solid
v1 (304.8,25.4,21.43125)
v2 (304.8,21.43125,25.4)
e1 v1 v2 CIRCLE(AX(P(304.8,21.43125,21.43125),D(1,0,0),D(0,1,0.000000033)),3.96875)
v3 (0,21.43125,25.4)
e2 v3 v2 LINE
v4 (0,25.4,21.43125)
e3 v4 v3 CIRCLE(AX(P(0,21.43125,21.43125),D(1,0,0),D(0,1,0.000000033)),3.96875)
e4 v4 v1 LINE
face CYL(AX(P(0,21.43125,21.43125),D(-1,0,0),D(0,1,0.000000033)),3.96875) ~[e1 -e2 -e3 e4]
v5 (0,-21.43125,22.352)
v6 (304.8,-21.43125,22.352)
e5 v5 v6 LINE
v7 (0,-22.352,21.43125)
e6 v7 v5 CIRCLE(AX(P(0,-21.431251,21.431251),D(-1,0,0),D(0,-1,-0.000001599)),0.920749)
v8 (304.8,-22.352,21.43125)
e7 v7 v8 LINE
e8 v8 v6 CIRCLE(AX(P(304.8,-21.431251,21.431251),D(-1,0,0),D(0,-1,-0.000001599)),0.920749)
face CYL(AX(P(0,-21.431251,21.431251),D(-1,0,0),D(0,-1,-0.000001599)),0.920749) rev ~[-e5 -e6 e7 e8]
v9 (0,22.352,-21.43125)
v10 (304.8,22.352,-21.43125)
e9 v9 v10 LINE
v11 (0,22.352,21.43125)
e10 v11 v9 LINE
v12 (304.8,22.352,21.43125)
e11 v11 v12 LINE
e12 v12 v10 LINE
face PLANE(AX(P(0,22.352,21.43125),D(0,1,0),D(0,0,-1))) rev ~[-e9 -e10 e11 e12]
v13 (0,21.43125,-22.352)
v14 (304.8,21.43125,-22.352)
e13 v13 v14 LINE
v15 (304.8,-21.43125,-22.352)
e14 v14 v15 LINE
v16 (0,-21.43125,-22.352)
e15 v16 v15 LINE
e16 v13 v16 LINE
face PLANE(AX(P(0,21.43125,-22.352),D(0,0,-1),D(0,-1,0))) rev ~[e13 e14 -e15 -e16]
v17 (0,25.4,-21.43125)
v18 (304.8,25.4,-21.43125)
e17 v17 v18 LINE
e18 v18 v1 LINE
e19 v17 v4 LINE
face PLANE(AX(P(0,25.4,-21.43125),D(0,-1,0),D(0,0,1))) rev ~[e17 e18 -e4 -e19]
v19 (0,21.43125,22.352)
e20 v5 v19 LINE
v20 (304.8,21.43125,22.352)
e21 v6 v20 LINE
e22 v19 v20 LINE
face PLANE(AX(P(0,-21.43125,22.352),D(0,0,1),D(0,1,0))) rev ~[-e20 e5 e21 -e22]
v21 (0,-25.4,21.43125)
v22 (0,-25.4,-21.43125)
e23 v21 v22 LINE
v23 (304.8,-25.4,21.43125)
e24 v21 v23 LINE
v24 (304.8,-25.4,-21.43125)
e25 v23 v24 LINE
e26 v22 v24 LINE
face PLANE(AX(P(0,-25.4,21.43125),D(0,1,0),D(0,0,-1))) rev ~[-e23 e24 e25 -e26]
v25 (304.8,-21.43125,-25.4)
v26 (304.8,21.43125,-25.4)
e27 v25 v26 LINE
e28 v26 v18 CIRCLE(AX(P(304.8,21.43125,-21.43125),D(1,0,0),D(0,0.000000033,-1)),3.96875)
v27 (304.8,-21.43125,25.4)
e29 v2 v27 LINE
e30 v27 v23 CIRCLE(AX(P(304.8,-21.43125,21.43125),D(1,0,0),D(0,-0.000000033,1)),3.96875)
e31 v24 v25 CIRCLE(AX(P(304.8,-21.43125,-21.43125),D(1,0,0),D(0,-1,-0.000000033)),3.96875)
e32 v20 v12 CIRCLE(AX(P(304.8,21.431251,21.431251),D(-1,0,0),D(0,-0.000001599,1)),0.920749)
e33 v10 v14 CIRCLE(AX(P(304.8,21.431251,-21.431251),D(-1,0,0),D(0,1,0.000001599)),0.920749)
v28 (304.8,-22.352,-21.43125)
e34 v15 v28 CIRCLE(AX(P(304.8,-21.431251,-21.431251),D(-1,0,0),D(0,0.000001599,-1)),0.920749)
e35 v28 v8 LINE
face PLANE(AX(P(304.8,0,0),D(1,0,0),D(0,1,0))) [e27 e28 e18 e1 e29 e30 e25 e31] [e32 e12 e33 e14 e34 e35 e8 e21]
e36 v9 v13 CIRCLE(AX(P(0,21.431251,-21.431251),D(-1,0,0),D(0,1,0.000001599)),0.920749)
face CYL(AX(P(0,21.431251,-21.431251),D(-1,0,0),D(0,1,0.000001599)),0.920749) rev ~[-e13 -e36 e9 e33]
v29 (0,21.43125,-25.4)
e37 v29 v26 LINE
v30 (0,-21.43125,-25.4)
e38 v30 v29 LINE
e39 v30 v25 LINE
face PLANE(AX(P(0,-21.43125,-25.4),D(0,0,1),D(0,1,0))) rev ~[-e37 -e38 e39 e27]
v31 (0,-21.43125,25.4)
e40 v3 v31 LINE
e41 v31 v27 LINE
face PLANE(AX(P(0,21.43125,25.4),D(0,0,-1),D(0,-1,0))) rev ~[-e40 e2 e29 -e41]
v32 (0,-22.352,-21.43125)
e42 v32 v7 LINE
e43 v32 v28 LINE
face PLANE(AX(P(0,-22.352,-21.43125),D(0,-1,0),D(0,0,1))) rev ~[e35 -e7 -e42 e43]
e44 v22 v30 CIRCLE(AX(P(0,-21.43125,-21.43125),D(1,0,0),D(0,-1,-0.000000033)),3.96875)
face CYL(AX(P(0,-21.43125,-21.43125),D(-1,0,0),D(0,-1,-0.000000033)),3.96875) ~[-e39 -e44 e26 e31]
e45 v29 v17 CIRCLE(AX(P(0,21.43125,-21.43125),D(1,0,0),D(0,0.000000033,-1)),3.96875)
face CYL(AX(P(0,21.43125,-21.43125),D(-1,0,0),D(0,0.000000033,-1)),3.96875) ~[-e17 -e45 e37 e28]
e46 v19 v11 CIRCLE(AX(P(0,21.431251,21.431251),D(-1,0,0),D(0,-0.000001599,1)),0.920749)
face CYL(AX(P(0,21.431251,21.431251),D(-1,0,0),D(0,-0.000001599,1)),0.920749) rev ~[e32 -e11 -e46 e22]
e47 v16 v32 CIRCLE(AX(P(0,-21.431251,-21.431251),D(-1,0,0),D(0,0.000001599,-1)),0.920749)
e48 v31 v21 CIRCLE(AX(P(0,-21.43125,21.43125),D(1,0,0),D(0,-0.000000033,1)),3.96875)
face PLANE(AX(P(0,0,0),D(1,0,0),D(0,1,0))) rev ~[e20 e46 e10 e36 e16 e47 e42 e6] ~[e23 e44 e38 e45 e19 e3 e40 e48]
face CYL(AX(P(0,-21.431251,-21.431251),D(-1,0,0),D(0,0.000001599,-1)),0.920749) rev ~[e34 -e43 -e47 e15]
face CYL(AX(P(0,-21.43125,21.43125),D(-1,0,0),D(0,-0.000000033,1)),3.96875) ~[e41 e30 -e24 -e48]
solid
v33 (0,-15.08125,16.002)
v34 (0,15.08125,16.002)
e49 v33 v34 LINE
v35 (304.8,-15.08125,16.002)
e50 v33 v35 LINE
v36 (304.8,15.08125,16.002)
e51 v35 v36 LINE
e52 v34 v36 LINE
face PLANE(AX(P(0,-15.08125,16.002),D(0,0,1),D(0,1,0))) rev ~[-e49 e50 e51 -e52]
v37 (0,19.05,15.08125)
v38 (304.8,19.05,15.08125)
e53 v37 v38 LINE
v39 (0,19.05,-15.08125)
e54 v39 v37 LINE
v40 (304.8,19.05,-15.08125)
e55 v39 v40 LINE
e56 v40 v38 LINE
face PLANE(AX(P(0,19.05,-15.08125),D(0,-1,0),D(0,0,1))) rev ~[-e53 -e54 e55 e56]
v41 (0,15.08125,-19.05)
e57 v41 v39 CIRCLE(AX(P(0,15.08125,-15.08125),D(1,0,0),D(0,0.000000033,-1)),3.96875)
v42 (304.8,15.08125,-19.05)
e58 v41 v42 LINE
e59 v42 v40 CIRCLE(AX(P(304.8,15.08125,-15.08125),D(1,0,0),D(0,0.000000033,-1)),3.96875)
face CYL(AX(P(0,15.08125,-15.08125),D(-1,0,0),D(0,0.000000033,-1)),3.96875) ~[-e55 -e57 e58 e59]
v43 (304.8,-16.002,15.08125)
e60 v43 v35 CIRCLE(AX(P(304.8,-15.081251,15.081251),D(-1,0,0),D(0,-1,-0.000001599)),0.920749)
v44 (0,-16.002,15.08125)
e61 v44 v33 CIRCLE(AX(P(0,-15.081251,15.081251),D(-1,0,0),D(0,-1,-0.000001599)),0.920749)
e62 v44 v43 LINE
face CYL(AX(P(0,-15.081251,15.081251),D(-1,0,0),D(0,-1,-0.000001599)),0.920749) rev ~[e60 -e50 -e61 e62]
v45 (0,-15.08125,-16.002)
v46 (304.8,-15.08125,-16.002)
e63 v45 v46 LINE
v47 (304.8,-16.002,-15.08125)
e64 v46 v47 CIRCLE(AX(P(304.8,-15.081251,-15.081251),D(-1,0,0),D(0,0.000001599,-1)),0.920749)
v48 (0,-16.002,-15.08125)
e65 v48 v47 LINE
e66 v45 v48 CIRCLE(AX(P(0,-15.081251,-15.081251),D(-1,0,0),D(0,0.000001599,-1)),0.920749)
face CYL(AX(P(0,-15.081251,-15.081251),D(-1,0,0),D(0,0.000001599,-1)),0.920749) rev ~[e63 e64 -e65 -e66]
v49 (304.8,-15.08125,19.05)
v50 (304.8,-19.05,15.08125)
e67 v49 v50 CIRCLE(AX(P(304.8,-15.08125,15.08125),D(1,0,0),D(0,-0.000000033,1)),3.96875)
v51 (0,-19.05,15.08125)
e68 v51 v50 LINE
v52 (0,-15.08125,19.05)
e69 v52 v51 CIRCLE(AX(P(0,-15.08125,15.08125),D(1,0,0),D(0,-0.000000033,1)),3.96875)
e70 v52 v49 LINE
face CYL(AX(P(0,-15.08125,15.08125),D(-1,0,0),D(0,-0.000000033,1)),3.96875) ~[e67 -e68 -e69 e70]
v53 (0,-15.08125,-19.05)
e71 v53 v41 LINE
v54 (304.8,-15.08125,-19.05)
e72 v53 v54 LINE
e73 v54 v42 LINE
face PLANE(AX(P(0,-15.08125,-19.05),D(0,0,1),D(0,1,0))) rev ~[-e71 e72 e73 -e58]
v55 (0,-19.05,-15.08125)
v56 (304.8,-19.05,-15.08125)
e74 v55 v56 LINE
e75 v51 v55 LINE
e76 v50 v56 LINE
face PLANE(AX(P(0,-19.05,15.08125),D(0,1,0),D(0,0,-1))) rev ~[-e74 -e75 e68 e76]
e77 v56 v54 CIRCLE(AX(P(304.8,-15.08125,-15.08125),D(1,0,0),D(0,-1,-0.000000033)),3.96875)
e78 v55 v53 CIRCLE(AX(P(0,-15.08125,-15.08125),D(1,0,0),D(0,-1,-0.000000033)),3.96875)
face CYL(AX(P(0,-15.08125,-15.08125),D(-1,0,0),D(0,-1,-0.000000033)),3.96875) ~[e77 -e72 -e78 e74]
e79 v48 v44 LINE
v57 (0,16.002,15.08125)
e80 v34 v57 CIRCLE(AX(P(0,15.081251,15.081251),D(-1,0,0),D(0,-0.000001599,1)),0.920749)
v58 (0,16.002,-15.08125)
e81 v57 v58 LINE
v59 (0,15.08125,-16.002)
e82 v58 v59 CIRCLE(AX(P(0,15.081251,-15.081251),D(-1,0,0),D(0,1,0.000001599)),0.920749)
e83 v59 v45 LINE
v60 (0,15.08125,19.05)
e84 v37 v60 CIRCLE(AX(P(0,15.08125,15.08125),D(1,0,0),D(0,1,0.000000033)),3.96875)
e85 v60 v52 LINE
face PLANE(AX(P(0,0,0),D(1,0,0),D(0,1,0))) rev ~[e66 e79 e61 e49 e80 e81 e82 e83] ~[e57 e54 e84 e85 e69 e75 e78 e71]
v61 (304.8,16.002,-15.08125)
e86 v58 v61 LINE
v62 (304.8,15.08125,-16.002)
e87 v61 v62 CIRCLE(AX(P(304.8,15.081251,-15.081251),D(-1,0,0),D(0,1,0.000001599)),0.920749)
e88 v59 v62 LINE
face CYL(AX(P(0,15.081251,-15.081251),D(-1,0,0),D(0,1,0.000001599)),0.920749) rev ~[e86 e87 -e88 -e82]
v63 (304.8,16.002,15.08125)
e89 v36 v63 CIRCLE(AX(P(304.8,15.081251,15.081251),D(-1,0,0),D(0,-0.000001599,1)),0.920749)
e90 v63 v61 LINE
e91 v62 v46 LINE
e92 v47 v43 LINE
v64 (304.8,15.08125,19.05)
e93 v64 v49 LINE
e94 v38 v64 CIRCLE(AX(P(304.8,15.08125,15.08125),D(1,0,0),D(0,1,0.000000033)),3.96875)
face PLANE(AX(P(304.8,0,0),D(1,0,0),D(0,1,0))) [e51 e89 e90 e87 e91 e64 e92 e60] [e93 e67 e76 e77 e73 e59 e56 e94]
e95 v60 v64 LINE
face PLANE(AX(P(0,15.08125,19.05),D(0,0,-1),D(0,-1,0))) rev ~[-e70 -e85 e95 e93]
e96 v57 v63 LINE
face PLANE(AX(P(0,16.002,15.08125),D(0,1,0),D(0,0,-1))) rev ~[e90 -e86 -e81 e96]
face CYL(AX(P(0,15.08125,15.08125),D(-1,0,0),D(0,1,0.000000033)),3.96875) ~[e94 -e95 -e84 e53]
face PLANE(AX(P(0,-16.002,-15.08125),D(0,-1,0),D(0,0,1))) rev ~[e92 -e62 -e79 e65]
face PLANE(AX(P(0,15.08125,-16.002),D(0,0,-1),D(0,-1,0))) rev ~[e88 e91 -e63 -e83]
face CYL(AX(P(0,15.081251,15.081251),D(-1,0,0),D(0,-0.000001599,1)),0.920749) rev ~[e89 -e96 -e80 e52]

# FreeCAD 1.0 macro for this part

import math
import FreeCAD as App
import Part
import Sketcher
Q = App.Units.Quantity

doc = App.newDocument("Part")
body = doc.addObject("PartDesign::Body", "Body")

# Sketch on YZ plane
sketch1 = doc.addObject("Sketcher::SketchObject", "Sketch")
body.addObject(sketch1)
sketch1.AttachmentSupport = (doc.YZ_Plane, [""])
sketch1.MapMode = "FlatFace"
sketch1.addGeometry([
    Part.LineSegment(App.Vector(21.4, 25.4, 0), App.Vector(-21.4, 25.4, 0)),  # 0
    Part.ArcOfCircle(Part.Circle(App.Vector(-21.4, 21.4, 0), App.Vector(0, 0, 1), 4), math.radians(90), math.radians(180)),  # 1
    Part.LineSegment(App.Vector(-25.4, 21.4, 0), App.Vector(-25.4, -21.4, 0)),  # 2
    Part.ArcOfCircle(Part.Circle(App.Vector(-21.4, -21.4, 0), App.Vector(0, 0, 1), 4), math.radians(-180), math.radians(-90)),  # 3
    Part.LineSegment(App.Vector(-21.4, -25.4, 0), App.Vector(21.4, -25.4, 0)),  # 4
    Part.ArcOfCircle(Part.Circle(App.Vector(21.4, -21.4, 0), App.Vector(0, 0, 1), 4), math.radians(-90), math.radians(0)),  # 5
    Part.LineSegment(App.Vector(25.4, -21.4, 0), App.Vector(25.4, 21.4, 0)),  # 6
    Part.ArcOfCircle(Part.Circle(App.Vector(21.4, 21.4, 0), App.Vector(0, 0, 1), 4), math.radians(0), math.radians(90)),  # 7
    Part.ArcOfCircle(Part.Circle(App.Vector(21.4, -21.4, 0), App.Vector(0, 0, 1), 0.9), math.radians(-90), math.radians(0)),  # 8
    Part.LineSegment(App.Vector(21.4, -22.4, 0), App.Vector(-21.4, -22.4, 0)),  # 9
    Part.ArcOfCircle(Part.Circle(App.Vector(-21.4, -21.4, 0), App.Vector(0, 0, 1), 0.9), math.radians(180), math.radians(270)),  # 10
    Part.LineSegment(App.Vector(-22.4, -21.4, 0), App.Vector(-22.4, 21.4, 0)),  # 11
    Part.ArcOfCircle(Part.Circle(App.Vector(-21.4, 21.4, 0), App.Vector(0, 0, 1), 0.9), math.radians(90), math.radians(180)),  # 12
    Part.LineSegment(App.Vector(-21.4, 22.4, 0), App.Vector(21.4, 22.4, 0)),  # 13
    Part.ArcOfCircle(Part.Circle(App.Vector(21.4, 21.4, 0), App.Vector(0, 0, 1), 0.9), math.radians(0), math.radians(90)),  # 14
    Part.LineSegment(App.Vector(22.4, 21.4, 0), App.Vector(22.4, -21.4, 0)),  # 15
], False)
sketch1.addConstraint([
    Sketcher.Constraint("Tangent", 0, 2, 1, 1),
    Sketcher.Constraint("Tangent", 1, 2, 2, 1),
    Sketcher.Constraint("Tangent", 2, 2, 3, 1),
    Sketcher.Constraint("Tangent", 3, 2, 4, 1),
    Sketcher.Constraint("Tangent", 4, 2, 5, 1),
    Sketcher.Constraint("Tangent", 5, 2, 6, 1),
    Sketcher.Constraint("Tangent", 6, 2, 7, 1),
    Sketcher.Constraint("Tangent", 7, 2, 0, 1),
    Sketcher.Constraint("Tangent", 8, 1, 9, 1),
    Sketcher.Constraint("Tangent", 9, 2, 10, 2),
    Sketcher.Constraint("Tangent", 10, 1, 11, 1),
    Sketcher.Constraint("Tangent", 11, 2, 12, 2),
    Sketcher.Constraint("Tangent", 12, 1, 13, 1),
    Sketcher.Constraint("Tangent", 13, 2, 14, 2),
    Sketcher.Constraint("Tangent", 14, 1, 15, 1),
    Sketcher.Constraint("Tangent", 15, 2, 8, 2),
    Sketcher.Constraint("Horizontal", 0),
    Sketcher.Constraint("Vertical", 2),
    Sketcher.Constraint("Horizontal", 4),
    Sketcher.Constraint("Vertical", 6),
    Sketcher.Constraint("Horizontal", 9),
    Sketcher.Constraint("Vertical", 11),
    Sketcher.Constraint("Horizontal", 13),
    Sketcher.Constraint("Vertical", 15),
    Sketcher.Constraint("Coincident", 8, 3, 5, 3),
    Sketcher.Constraint("Coincident", 10, 3, 3, 3),
    Sketcher.Constraint("Coincident", 12, 3, 1, 3),
    Sketcher.Constraint("Equal", 1, 3),
    Sketcher.Constraint("Equal", 3, 5),
    Sketcher.Constraint("Equal", 5, 7),
    Sketcher.Constraint("Equal", 12, 14),
    Sketcher.Constraint("Symmetric", 1, 3, 5, 3, -1, 1),
    Sketcher.Constraint("Equal", 13, 2),
    Sketcher.Constraint("DistanceY", -1, 1, 0, 2, Q("1 in")),
    Sketcher.Constraint("Radius", 1, Q("0.15625 in")),
    Sketcher.Constraint("DistanceY", 8, 1, -1, 1, Q("0.88 in")),
])
pad1 = doc.addObject("PartDesign::Pad", "Pad")
body.addObject(pad1)
pad1.Profile = sketch1
pad1.Length = Q("12 in")
body2 = doc.addObject("PartDesign::Body", "Body001")

# Sketch on YZ plane
sketch2 = doc.addObject("Sketcher::SketchObject", "Sketch001")
body2.addObject(sketch2)
sketch2.AttachmentSupport = (doc.getObject("YZ_Plane001"), [""])
sketch2.MapMode = "FlatFace"
sketch2.addGeometry([
    Part.ArcOfCircle(Part.Circle(App.Vector(15.1, 15.1, 0), App.Vector(0, 0, 1), 4), math.radians(0), math.radians(90)),  # 0
    Part.LineSegment(App.Vector(15.1, 19.1, 0), App.Vector(-15.1, 19.1, 0)),  # 1
    Part.ArcOfCircle(Part.Circle(App.Vector(-15.1, 15.1, 0), App.Vector(0, 0, 1), 4), math.radians(90), math.radians(180)),  # 2
    Part.LineSegment(App.Vector(-19.1, 15.1, 0), App.Vector(-19.1, -15.1, 0)),  # 3
    Part.ArcOfCircle(Part.Circle(App.Vector(-15.1, -15.1, 0), App.Vector(0, 0, 1), 4), math.radians(-180), math.radians(-90)),  # 4
    Part.LineSegment(App.Vector(-15.1, -19.1, 0), App.Vector(15.1, -19.1, 0)),  # 5
    Part.ArcOfCircle(Part.Circle(App.Vector(15.1, -15.1, 0), App.Vector(0, 0, 1), 4), math.radians(-90), math.radians(0)),  # 6
    Part.LineSegment(App.Vector(19.1, -15.1, 0), App.Vector(19.1, 15.1, 0)),  # 7
    Part.ArcOfCircle(Part.Circle(App.Vector(-15.1, 15.1, 0), App.Vector(0, 0, 1), 0.9), math.radians(90), math.radians(180)),  # 8
    Part.LineSegment(App.Vector(-15.1, 16, 0), App.Vector(15.1, 16, 0)),  # 9
    Part.ArcOfCircle(Part.Circle(App.Vector(15.1, 15.1, 0), App.Vector(0, 0, 1), 0.9), math.radians(0), math.radians(90)),  # 10
    Part.LineSegment(App.Vector(16, 15.1, 0), App.Vector(16, -15.1, 0)),  # 11
    Part.ArcOfCircle(Part.Circle(App.Vector(15.1, -15.1, 0), App.Vector(0, 0, 1), 0.9), math.radians(-90), math.radians(0)),  # 12
    Part.LineSegment(App.Vector(15.1, -16, 0), App.Vector(-15.1, -16, 0)),  # 13
    Part.ArcOfCircle(Part.Circle(App.Vector(-15.1, -15.1, 0), App.Vector(0, 0, 1), 0.9), math.radians(180), math.radians(270)),  # 14
    Part.LineSegment(App.Vector(-16, -15.1, 0), App.Vector(-16, 15.1, 0)),  # 15
], False)
sketch2.addConstraint([
    Sketcher.Constraint("Tangent", 0, 2, 1, 1),
    Sketcher.Constraint("Tangent", 1, 2, 2, 1),
    Sketcher.Constraint("Tangent", 2, 2, 3, 1),
    Sketcher.Constraint("Tangent", 3, 2, 4, 1),
    Sketcher.Constraint("Tangent", 4, 2, 5, 1),
    Sketcher.Constraint("Tangent", 5, 2, 6, 1),
    Sketcher.Constraint("Tangent", 6, 2, 7, 1),
    Sketcher.Constraint("Tangent", 7, 2, 0, 1),
    Sketcher.Constraint("Tangent", 8, 1, 9, 1),
    Sketcher.Constraint("Tangent", 9, 2, 10, 2),
    Sketcher.Constraint("Tangent", 10, 1, 11, 1),
    Sketcher.Constraint("Tangent", 11, 2, 12, 2),
    Sketcher.Constraint("Tangent", 12, 1, 13, 1),
    Sketcher.Constraint("Tangent", 13, 2, 14, 2),
    Sketcher.Constraint("Tangent", 14, 1, 15, 1),
    Sketcher.Constraint("Tangent", 15, 2, 8, 2),
    Sketcher.Constraint("Horizontal", 1),
    Sketcher.Constraint("Vertical", 3),
    Sketcher.Constraint("Horizontal", 5),
    Sketcher.Constraint("Vertical", 7),
    Sketcher.Constraint("Horizontal", 9),
    Sketcher.Constraint("Vertical", 11),
    Sketcher.Constraint("Horizontal", 13),
    Sketcher.Constraint("Vertical", 15),
    Sketcher.Constraint("Coincident", 8, 3, 2, 3),
    Sketcher.Constraint("Coincident", 10, 3, 0, 3),
    Sketcher.Constraint("Coincident", 12, 3, 6, 3),
    Sketcher.Constraint("Equal", 0, 2),
    Sketcher.Constraint("Equal", 2, 4),
    Sketcher.Constraint("Equal", 4, 6),
    Sketcher.Constraint("Equal", 12, 14),
    Sketcher.Constraint("Symmetric", 0, 3, 4, 3, -1, 1),
    Sketcher.Constraint("Equal", 13, 3),
    Sketcher.Constraint("Radius", 0, Q("0.15625 in")),
    Sketcher.Constraint("DistanceX", 1, 2, 1, 1, Q("1.1875 in")),
    Sketcher.Constraint("DistanceY", -1, 1, 8, 1, Q("0.63 in")),
])
pad2 = doc.addObject("PartDesign::Pad", "Pad001")
body2.addObject(pad2)
pad2.Profile = sketch2
pad2.Length = Q("12 in")

doc.recompute()
